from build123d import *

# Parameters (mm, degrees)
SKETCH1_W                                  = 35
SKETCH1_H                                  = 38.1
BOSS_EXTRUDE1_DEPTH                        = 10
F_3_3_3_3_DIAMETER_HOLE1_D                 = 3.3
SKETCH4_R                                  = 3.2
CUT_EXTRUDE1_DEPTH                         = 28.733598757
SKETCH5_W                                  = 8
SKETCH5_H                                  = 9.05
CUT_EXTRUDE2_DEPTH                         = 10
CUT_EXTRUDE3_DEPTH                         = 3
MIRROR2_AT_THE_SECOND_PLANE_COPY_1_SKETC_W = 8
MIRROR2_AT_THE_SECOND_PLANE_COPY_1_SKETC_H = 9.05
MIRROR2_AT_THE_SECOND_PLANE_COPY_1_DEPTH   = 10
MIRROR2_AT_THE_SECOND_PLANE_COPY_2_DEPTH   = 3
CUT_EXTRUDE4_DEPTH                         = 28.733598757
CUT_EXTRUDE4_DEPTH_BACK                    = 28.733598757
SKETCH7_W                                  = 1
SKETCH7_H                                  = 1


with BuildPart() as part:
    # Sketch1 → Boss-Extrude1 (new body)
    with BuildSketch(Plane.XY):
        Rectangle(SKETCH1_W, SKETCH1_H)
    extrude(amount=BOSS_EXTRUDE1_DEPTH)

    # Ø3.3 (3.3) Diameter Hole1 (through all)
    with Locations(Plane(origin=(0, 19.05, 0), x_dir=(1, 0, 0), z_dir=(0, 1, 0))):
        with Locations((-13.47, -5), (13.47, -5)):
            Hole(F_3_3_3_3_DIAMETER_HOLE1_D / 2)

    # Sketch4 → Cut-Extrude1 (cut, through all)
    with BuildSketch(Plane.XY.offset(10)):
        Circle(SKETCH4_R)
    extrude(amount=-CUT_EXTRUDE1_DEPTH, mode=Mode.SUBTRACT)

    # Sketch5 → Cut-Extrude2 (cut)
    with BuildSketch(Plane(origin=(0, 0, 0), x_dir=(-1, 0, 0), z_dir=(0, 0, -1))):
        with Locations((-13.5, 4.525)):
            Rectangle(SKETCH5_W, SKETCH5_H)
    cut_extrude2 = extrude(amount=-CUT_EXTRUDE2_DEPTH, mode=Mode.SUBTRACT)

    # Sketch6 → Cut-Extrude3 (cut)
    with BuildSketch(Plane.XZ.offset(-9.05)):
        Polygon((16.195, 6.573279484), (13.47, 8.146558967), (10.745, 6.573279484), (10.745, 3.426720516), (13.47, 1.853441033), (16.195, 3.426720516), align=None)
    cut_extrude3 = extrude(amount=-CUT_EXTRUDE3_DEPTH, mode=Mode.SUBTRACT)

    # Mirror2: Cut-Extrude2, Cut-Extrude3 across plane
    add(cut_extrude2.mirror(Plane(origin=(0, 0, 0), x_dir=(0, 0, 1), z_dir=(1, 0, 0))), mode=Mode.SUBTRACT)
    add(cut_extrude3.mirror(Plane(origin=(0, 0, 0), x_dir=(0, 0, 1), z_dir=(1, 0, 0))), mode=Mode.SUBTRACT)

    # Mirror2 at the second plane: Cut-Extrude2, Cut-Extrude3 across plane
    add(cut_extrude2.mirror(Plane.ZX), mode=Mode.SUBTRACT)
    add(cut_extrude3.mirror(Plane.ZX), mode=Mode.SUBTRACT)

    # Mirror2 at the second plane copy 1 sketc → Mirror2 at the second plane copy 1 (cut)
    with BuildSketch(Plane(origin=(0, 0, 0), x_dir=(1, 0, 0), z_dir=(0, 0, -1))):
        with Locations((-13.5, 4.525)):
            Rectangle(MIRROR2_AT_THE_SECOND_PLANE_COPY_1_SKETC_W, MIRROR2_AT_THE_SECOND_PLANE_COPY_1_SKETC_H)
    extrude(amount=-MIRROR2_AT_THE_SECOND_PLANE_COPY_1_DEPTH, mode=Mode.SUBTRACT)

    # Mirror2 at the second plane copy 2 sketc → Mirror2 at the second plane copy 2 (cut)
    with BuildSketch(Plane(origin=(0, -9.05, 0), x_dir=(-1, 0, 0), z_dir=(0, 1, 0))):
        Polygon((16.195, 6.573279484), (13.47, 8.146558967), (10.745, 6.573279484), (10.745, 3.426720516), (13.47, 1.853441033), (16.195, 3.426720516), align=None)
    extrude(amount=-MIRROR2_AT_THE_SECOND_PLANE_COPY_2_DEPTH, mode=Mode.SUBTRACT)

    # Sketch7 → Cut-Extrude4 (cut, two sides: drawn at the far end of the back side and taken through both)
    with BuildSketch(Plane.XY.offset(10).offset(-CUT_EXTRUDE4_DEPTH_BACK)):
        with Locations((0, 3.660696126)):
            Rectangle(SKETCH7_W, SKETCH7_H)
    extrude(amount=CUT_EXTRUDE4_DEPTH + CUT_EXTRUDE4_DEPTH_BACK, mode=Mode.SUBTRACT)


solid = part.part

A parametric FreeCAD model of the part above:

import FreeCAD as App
import Part
import Sketcher
from FreeCAD import Vector
Q = App.Units.Quantity


def add_polygon(sketch, points):
    """Adds a closed chain of lines whose ends are joined by coincident constraints."""
    first, n = sketch.GeometryCount, len(points)
    for a, b in zip(points, points[1:] + points[:1]):
        sketch.addGeometry(Part.LineSegment(App.Vector(*a, 0), App.Vector(*b, 0)), False)
    for i in range(n):
        sketch.addConstraint(Sketcher.Constraint("Coincident", first + i, 2, first + (i + 1) % n, 1))

doc = App.newDocument("Part")
params = doc.addObject("Spreadsheet::Sheet", "Params")
for row, (alias, value) in enumerate([
    ("sketch1_width", "35 mm"),
    ("sketch1_height", "38.1 mm"),
    ("pad1_length", "10 mm"),
    ("sketch2_diameter", "3.3 mm"),
    ("hole_diameter", "3.3 mm"),
    ("sketch3_diameter", "6.4 mm"),
    ("sketch4_width", "8 mm"),
    ("sketch4_height", "9.05 mm"),
    ("pocket2_length", "10 mm"),
    ("pocket3_length", "3 mm"),
    ("sketch6_width", "8 mm"),
    ("sketch6_height", "9.05 mm"),
    ("pocket4_length", "10 mm"),
    ("pocket5_length", "3 mm"),
    ("sketch8_width", "1 mm"),
], start=1):
    params.set(f"A{row}", alias)
    params.set(f"B{row}", "=" + value)
    params.setAlias(f"B{row}", alias)

body = doc.addObject("PartDesign::Body", "Body")

sketch1 = doc.addObject("Sketcher::SketchObject", "Sketch")
body.addObject(sketch1)
sketch1.AttachmentSupport = (doc.XY_Plane, [""])
sketch1.MapMode = "FlatFace"
add_polygon(sketch1, [(-18, 19), (-18, -19), (18, -19), (18, 19)])
sketch1.addConstraint(Sketcher.Constraint("Vertical", 0))
sketch1.addConstraint(Sketcher.Constraint("Horizontal", 1))
sketch1.addConstraint(Sketcher.Constraint("Vertical", 2))
sketch1.addConstraint(Sketcher.Constraint("Horizontal", 3))
sketch1.addConstraint(Sketcher.Constraint("Symmetric", 0, 2, 2, 2, -1, 1))
sketch1.addConstraint(Sketcher.Constraint("DistanceX", 1, 1, 1, 2, Q("35 mm")))
sketch1.addConstraint(Sketcher.Constraint("DistanceY", 0, 2, 0, 1, Q("38.1 mm")))
sketch1.setExpression("Constraints[9]", "Params.sketch1_width")
sketch1.setExpression("Constraints[10]", "Params.sketch1_height")
pad1 = doc.addObject("PartDesign::Pad", "Pad")
body.addObject(pad1)
pad1.Profile = sketch1
pad1.setExpression("Length", "Params.pad1_length")

sketch2 = doc.addObject("Sketcher::SketchObject", "Sketch001")
body.addObject(sketch2)
sketch2.AttachmentSupport = (doc.XZ_Plane, [""])
sketch2.MapMode = "FlatFace"
sketch2.AttachmentOffset = App.Placement(Vector(0, 0, -19.05), App.Rotation())
sketch2.addGeometry(Part.Circle(Vector(-13.5, 5, 0), Vector(0, 0, 1), 1.6), False)
sketch2.addGeometry(Part.Circle(Vector(13.5, 5, 0), Vector(0, 0, 1), 1.6), False)
sketch2.addConstraint(Sketcher.Constraint("Equal", 0, 1))
sketch2.addConstraint(Sketcher.Constraint("Symmetric", 0, 3, 1, 3, -2))
sketch2.addConstraint(Sketcher.Constraint("Diameter", 0, Q("3.3 mm")))
sketch2.addConstraint(Sketcher.Constraint("DistanceY", -1, 1, 0, 3, Q("5 mm")))
sketch2.addConstraint(Sketcher.Constraint("DistanceX", 0, 3, -1, 1, Q("13.47 mm")))
sketch2.setExpression("Constraints[2]", "Params.sketch2_diameter")
doc.recompute()
hole = doc.addObject("PartDesign::Hole", "Hole")
body.addObject(hole)
hole.Profile = sketch2
hole.ThreadType = "None"
hole.setExpression("Diameter", "Params.hole_diameter")
hole.DepthType = "ThroughAll"
hole.Reversed = True

sketch3 = doc.addObject("Sketcher::SketchObject", "Sketch002")
body.addObject(sketch3)
sketch3.AttachmentSupport = (doc.XY_Plane, [""])
sketch3.MapMode = "FlatFace"
sketch3.AttachmentOffset = App.Placement(Vector(0, 0, 10), App.Rotation())
sketch3.addGeometry(Part.Circle(Vector(0, 0, 0), Vector(0, 0, 1), 3.2), False)
sketch3.addConstraint(Sketcher.Constraint("Coincident", 0, 3, -1, 1))
sketch3.addConstraint(Sketcher.Constraint("Diameter", 0, Q("6.4 mm")))
sketch3.setExpression("Constraints[1]", "Params.sketch3_diameter")
pocket1 = doc.addObject("PartDesign::Pocket", "Pocket")
body.addObject(pocket1)
pocket1.Profile = sketch3
pocket1.Type = "ThroughAll"

sketch4 = doc.addObject("Sketcher::SketchObject", "Sketch003")
body.addObject(sketch4)
sketch4.AttachmentSupport = (doc.XY_Plane, [""])
sketch4.MapMode = "FlatFace"
add_polygon(sketch4, [(18, 9), (18, 0), (10, 0), (10, 9)])
sketch4.addConstraint(Sketcher.Constraint("Vertical", 0))
sketch4.addConstraint(Sketcher.Constraint("Horizontal", 1))
sketch4.addConstraint(Sketcher.Constraint("Vertical", 2))
sketch4.addConstraint(Sketcher.Constraint("Horizontal", 3))
sketch4.addConstraint(Sketcher.Constraint("PointOnObject", 0, 2, -1))
sketch4.addConstraint(Sketcher.Constraint("DistanceX", 1, 2, 1, 1, Q("8 mm")))
sketch4.addConstraint(Sketcher.Constraint("DistanceY", 0, 2, 0, 1, Q("9.05 mm")))
sketch4.addConstraint(Sketcher.Constraint("DistanceX", -1, 1, 0, 2, Q("17.5 mm")))
sketch4.setExpression("Constraints[9]", "Params.sketch4_width")
sketch4.setExpression("Constraints[10]", "Params.sketch4_height")
pocket2 = doc.addObject("PartDesign::Pocket", "Pocket001")
body.addObject(pocket2)
pocket2.Profile = sketch4
pocket2.setExpression("Length", "Params.pocket2_length")
pocket2.Reversed = True

sketch5 = doc.addObject("Sketcher::SketchObject", "Sketch004")
body.addObject(sketch5)
sketch5.AttachmentSupport = (doc.XZ_Plane, [""])
sketch5.MapMode = "FlatFace"
sketch5.AttachmentOffset = App.Placement(Vector(0, 0, -9.05), App.Rotation())
add_polygon(sketch5, [(16.2, 6.6), (13.5, 8.1), (10.7, 6.6), (10.7, 3.4), (13.5, 1.9), (16.2, 3.4)])
sketch5.addConstraint(Sketcher.Constraint("Vertical", 2))
sketch5.addConstraint(Sketcher.Constraint("Vertical", 5))
sketch5.addConstraint(Sketcher.Constraint("Parallel", 0, 3))
sketch5.addConstraint(Sketcher.Constraint("Parallel", 1, 4))
sketch5.addConstraint(Sketcher.Constraint("Horizontal", 2, 2, 4, 2))
sketch5.addConstraint(Sketcher.Constraint("Horizontal", 1, 2, 5, 2))
sketch5.addConstraint(Sketcher.Constraint("Vertical", 0, 2, 3, 2))
sketch5.addConstraint(Sketcher.Constraint("Angle", 0, Q("150 deg")))
sketch5.addConstraint(Sketcher.Constraint("DistanceX", -1, 1, 0, 2, Q("13.47 mm")))
sketch5.addConstraint(Sketcher.Constraint("DistanceX", 2, 2, 4, 2, Q("5.45 mm")))
sketch5.addConstraint(Sketcher.Constraint("DistanceY", 2, 2, 2, 1, Q("3.146559 mm")))
sketch5.addConstraint(Sketcher.Constraint("DistanceY", -1, 1, 0, 2, Q("8.146559 mm")))
pocket3 = doc.addObject("PartDesign::Pocket", "Pocket002")
body.addObject(pocket3)
pocket3.Profile = sketch5
pocket3.setExpression("Length", "Params.pocket3_length")
doc.recompute()

mirrored = doc.addObject("PartDesign::Mirrored", "Mirrored")
body.addObject(mirrored)
mirrored.Originals = [pocket2, pocket3]
mirrored.MirrorPlane = (doc.YZ_Plane, [""])
body.Tip = mirrored
doc.recompute()

mirrored2 = doc.addObject("PartDesign::Mirrored", "Mirrored001")
body.addObject(mirrored2)
mirrored2.Originals = [pocket2, pocket3]
mirrored2.MirrorPlane = (doc.XZ_Plane, [""])
body.Tip = mirrored2

sketch6 = doc.addObject("Sketcher::SketchObject", "Sketch005")
body.addObject(sketch6)
sketch6.AttachmentSupport = (doc.XY_Plane, [""])
sketch6.MapMode = "FlatFace"
add_polygon(sketch6, [(-18, -9), (-18, 0), (-10, 0), (-10, -9)])
sketch6.addConstraint(Sketcher.Constraint("Vertical", 0))
sketch6.addConstraint(Sketcher.Constraint("Horizontal", 1))
sketch6.addConstraint(Sketcher.Constraint("Vertical", 2))
sketch6.addConstraint(Sketcher.Constraint("Horizontal", 3))
sketch6.addConstraint(Sketcher.Constraint("PointOnObject", 0, 2, -1))
sketch6.addConstraint(Sketcher.Constraint("DistanceX", 1, 1, 1, 2, Q("8 mm")))
sketch6.addConstraint(Sketcher.Constraint("DistanceY", 0, 1, 0, 2, Q("9.05 mm")))
sketch6.addConstraint(Sketcher.Constraint("DistanceX", 0, 2, -1, 1, Q("17.5 mm")))
sketch6.setExpression("Constraints[9]", "Params.sketch6_width")
sketch6.setExpression("Constraints[10]", "Params.sketch6_height")
pocket4 = doc.addObject("PartDesign::Pocket", "Pocket003")
body.addObject(pocket4)
pocket4.Profile = sketch6
pocket4.setExpression("Length", "Params.pocket4_length")
pocket4.Reversed = True

sketch7 = doc.addObject("Sketcher::SketchObject", "Sketch006")
body.addObject(sketch7)
sketch7.AttachmentSupport = (doc.XZ_Plane, [""])
sketch7.MapMode = "FlatFace"
sketch7.AttachmentOffset = App.Placement(Vector(0, 0, 9.05), App.Rotation())
add_polygon(sketch7, [(-16.2, 6.6), (-13.5, 8.1), (-10.7, 6.6), (-10.7, 3.4), (-13.5, 1.9), (-16.2, 3.4)])
sketch7.addConstraint(Sketcher.Constraint("Vertical", 2))
sketch7.addConstraint(Sketcher.Constraint("Vertical", 5))
sketch7.addConstraint(Sketcher.Constraint("Parallel", 0, 3))
sketch7.addConstraint(Sketcher.Constraint("Parallel", 1, 4))
sketch7.addConstraint(Sketcher.Constraint("Horizontal", 2, 2, 4, 2))
sketch7.addConstraint(Sketcher.Constraint("Horizontal", 1, 2, 5, 2))
sketch7.addConstraint(Sketcher.Constraint("Vertical", 0, 2, 3, 2))
sketch7.addConstraint(Sketcher.Constraint("Angle", 0, Q("30 deg")))
sketch7.addConstraint(Sketcher.Constraint("DistanceX", 0, 2, -1, 1, Q("13.47 mm")))
sketch7.addConstraint(Sketcher.Constraint("DistanceX", 4, 2, 2, 2, Q("5.45 mm")))
sketch7.addConstraint(Sketcher.Constraint("DistanceY", 2, 2, 2, 1, Q("3.146559 mm")))
sketch7.addConstraint(Sketcher.Constraint("DistanceY", -1, 1, 0, 2, Q("8.146559 mm")))
pocket5 = doc.addObject("PartDesign::Pocket", "Pocket004")
body.addObject(pocket5)
pocket5.Profile = sketch7
pocket5.setExpression("Length", "Params.pocket5_length")
pocket5.Reversed = True

sketch8 = doc.addObject("Sketcher::SketchObject", "Sketch007")
body.addObject(sketch8)
sketch8.AttachmentSupport = (doc.XY_Plane, [""])
sketch8.MapMode = "FlatFace"
sketch8.AttachmentOffset = App.Placement(Vector(0, 0, 10), App.Rotation())
add_polygon(sketch8, [(-0.5, 4.2), (-0.5, 3.2), (0.5, 3.2), (0.5, 4.2)])
sketch8.addConstraint(Sketcher.Constraint("Vertical", 0))
sketch8.addConstraint(Sketcher.Constraint("Horizontal", 1))
sketch8.addConstraint(Sketcher.Constraint("Vertical", 2))
sketch8.addConstraint(Sketcher.Constraint("Horizontal", 3))
sketch8.addConstraint(Sketcher.Constraint("Equal", 3, 0))
sketch8.addConstraint(Sketcher.Constraint("DistanceX", 1, 1, 1, 2, Q("1 mm")))
sketch8.addConstraint(Sketcher.Constraint("DistanceX", 0, 2, -1, 1, Q("0.5 mm")))
sketch8.addConstraint(Sketcher.Constraint("DistanceY", -1, 1, 0, 2, Q("3.160696 mm")))
sketch8.setExpression("Constraints[9]", "Params.sketch8_width")
pocket6 = doc.addObject("PartDesign::Pocket", "Pocket005")
body.addObject(pocket6)
pocket6.Profile = sketch8
pocket6.Type = "ThroughAll"
pocket6.Midplane = True

doc.recompute()
